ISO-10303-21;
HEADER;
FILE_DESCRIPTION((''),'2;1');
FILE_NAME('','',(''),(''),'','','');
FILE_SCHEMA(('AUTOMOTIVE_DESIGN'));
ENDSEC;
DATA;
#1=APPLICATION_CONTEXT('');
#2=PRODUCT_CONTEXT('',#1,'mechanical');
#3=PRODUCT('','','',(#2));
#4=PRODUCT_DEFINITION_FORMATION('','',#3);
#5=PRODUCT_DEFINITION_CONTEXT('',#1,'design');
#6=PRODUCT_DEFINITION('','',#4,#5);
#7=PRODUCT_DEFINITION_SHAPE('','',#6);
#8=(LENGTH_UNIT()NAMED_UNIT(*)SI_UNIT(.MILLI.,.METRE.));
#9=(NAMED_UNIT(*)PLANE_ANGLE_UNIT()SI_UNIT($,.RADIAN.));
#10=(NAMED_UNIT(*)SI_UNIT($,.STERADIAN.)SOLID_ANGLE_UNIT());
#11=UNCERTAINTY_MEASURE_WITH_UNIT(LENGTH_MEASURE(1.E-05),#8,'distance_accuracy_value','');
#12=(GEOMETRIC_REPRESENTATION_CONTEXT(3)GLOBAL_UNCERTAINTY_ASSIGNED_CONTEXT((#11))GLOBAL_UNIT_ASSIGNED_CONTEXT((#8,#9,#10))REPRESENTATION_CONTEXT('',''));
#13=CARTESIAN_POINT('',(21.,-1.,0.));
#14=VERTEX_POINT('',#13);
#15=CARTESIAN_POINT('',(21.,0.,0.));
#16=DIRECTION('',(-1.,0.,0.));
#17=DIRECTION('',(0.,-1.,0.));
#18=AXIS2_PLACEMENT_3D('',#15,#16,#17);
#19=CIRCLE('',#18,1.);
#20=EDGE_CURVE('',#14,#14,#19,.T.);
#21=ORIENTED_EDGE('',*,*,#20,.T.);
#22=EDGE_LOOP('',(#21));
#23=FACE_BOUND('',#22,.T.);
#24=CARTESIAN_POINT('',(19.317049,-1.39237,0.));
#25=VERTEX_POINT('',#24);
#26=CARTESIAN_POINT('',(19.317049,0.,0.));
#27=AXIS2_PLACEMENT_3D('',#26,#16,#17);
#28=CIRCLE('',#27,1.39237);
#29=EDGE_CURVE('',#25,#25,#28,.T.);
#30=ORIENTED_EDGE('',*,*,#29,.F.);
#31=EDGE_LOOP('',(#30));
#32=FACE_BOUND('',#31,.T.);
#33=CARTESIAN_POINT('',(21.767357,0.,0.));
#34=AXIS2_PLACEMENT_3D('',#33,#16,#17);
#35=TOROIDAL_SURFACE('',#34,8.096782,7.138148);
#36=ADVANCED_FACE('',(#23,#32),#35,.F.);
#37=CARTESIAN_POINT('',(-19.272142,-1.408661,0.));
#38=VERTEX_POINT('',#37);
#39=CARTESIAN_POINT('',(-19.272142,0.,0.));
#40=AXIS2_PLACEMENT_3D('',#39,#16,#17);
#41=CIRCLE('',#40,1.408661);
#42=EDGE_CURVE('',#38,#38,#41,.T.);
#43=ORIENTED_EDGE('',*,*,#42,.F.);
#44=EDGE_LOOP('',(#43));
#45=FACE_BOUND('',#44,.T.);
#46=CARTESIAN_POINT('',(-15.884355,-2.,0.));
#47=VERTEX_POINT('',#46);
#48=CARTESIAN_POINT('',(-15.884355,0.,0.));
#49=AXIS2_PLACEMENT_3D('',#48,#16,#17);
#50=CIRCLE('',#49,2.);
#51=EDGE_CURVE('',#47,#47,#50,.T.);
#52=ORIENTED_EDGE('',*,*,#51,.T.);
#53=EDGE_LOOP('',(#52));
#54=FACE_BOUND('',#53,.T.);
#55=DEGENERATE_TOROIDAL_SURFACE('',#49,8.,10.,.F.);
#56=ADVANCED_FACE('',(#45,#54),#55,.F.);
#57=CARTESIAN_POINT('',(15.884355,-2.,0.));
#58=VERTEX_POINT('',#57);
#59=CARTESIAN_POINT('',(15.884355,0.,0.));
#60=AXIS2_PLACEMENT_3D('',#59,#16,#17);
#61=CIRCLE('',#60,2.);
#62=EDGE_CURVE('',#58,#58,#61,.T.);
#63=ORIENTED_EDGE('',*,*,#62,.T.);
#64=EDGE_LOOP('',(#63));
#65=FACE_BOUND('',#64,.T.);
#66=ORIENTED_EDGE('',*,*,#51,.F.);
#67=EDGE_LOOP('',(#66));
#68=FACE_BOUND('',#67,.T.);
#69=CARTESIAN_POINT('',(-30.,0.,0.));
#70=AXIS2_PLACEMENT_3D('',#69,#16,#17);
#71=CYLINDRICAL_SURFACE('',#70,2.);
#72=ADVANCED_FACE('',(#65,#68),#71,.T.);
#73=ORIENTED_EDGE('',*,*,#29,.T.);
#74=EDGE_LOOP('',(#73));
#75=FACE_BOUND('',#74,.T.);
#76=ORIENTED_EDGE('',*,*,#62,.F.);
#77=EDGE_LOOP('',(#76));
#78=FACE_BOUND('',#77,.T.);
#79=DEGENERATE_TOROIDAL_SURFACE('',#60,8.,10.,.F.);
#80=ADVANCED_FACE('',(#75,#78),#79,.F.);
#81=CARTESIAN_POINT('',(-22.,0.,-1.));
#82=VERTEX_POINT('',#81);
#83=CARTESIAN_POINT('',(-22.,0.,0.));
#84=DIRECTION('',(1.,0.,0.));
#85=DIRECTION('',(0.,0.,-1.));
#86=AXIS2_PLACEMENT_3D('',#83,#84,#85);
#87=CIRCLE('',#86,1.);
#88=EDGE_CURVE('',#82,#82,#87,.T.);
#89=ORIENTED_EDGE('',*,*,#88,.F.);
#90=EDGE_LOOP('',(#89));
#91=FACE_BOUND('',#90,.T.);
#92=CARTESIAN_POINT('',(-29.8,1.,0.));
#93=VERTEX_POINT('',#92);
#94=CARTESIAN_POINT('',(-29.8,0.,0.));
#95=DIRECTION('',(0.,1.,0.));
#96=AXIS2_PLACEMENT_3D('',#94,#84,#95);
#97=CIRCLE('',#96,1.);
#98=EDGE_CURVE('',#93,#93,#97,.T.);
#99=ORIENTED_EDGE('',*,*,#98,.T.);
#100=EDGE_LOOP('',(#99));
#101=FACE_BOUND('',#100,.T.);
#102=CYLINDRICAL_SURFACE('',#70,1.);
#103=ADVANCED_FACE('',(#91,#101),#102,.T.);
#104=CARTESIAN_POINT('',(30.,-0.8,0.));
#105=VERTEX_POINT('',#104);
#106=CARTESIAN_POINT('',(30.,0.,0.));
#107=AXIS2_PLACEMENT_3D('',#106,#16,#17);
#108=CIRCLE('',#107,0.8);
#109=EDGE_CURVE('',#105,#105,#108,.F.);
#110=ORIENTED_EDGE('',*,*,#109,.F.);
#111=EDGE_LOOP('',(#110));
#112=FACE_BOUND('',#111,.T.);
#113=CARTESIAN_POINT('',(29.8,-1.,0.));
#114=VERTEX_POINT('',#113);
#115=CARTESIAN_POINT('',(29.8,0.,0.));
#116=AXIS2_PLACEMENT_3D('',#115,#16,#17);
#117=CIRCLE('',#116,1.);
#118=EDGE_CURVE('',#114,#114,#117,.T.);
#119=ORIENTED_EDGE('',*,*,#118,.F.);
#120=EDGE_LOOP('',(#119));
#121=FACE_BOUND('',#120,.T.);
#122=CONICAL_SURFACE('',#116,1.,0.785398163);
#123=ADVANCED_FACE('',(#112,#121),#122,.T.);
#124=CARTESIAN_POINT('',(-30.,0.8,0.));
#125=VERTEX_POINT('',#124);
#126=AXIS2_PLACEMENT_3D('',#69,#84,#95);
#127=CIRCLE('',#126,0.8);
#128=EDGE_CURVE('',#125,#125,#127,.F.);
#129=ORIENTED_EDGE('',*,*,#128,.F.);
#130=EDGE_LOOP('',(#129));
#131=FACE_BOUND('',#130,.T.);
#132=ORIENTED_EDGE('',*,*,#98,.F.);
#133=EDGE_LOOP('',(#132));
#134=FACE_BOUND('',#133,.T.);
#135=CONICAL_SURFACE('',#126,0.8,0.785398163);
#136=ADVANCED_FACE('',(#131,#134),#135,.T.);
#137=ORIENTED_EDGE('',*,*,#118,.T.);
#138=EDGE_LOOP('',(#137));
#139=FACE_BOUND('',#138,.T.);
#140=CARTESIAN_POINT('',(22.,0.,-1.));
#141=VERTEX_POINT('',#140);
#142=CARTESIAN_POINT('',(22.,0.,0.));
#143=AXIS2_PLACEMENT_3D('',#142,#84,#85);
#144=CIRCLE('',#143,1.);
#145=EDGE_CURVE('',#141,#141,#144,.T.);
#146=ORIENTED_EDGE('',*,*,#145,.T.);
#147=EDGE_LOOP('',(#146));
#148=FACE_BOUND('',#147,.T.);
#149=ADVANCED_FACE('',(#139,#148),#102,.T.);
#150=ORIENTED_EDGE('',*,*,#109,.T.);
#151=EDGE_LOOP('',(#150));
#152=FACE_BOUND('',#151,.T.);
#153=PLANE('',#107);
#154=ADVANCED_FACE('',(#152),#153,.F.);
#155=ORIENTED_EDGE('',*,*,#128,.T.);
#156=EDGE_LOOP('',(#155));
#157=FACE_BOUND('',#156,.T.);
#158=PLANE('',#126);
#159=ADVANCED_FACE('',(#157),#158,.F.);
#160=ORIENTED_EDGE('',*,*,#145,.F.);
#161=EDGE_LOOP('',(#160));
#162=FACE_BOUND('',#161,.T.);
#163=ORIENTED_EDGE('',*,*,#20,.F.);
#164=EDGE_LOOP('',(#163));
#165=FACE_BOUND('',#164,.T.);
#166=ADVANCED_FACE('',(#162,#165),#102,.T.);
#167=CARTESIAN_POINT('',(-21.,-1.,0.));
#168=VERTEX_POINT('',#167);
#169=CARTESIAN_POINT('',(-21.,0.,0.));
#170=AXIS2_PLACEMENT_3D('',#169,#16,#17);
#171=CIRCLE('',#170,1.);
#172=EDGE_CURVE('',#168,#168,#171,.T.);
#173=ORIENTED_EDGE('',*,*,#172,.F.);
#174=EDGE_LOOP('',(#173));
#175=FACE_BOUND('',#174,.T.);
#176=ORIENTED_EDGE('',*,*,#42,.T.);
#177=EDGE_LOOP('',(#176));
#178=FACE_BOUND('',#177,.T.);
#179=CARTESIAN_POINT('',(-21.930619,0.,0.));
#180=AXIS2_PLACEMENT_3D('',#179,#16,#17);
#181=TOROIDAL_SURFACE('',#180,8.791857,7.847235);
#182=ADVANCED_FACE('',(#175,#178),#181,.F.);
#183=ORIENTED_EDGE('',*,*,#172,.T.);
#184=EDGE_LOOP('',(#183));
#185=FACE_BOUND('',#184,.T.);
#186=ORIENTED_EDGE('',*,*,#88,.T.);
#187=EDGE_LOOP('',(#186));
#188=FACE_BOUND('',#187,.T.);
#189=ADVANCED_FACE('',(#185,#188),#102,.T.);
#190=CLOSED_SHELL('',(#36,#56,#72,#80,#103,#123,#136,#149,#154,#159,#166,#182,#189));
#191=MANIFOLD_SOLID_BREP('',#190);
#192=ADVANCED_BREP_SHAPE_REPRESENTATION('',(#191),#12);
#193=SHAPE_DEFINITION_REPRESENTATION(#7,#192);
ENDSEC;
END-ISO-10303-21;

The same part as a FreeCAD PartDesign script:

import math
import FreeCAD as App
import Part
import Sketcher

V = App.Vector
Q = App.Units.Quantity


def edges_at(feature, points):
    """Names of the edges that pass closest to the given points."""
    edges = feature.Shape.Edges
    near = lambda p: min(range(len(edges)), key=lambda i: edges[i].distToShape(Part.Vertex(*p))[0])
    return sorted({f"Edge{near(p) + 1}" for p in points})

doc = App.newDocument("Part")
body = doc.addObject("PartDesign::Body", "Body")

# Sketch on XY plane
sketch1 = body.newObject("Sketcher::SketchObject", "Sketch")
sketch1.AttachmentSupport = (doc.getObject("XY_Plane"), [""])
sketch1.MapMode = "FlatFace"
sketch1.addGeometry(Part.LineSegment(V(-30, 0, 0), V(30, 0, 0)), False)
sketch1.addGeometry(Part.LineSegment(V(30, 0, 0), V(30, 1, 0)), False)
sketch1.addGeometry(Part.LineSegment(V(30, 1, 0), V(21, 1, 0)), False)
sketch1.addGeometry(Part.ArcOfCircle(Part.Circle(V(21.8, 8.1, 0), V(0, 0, 1), 7.1), math.radians(-110.08), math.radians(-96.17)), False)
sketch1.addGeometry(Part.ArcOfCircle(Part.Circle(V(15.9, -8, 0), V(0, 0, 1), 10), math.radians(70), math.radians(90)), False)
sketch1.addGeometry(Part.LineSegment(V(15.9, 2, 0), V(-15.9, 2, 0)), False)
sketch1.addGeometry(Part.ArcOfCircle(Part.Circle(V(-15.9, -8, 0), V(0, 0, 1), 10), math.radians(90), math.radians(109.8)), False)
sketch1.addGeometry(Part.ArcOfCircle(Part.Circle(V(-21.9, 8.8, 0), V(0, 0, 1), 7.8), math.radians(-83.19), math.radians(-70.2)), False)
sketch1.addGeometry(Part.LineSegment(V(-21, 1, 0), V(-30, 1, 0)), False)
sketch1.addGeometry(Part.LineSegment(V(-30, 1, 0), V(-30, 0, 0)), False)
sketch1.addConstraint(Sketcher.Constraint("Coincident", 0, 2, 1, 1))
sketch1.addConstraint(Sketcher.Constraint("Coincident", 1, 2, 2, 1))
sketch1.addConstraint(Sketcher.Constraint("Coincident", 2, 2, 3, 2))
sketch1.addConstraint(Sketcher.Constraint("Tangent", 3, 1, 4, 1))
sketch1.addConstraint(Sketcher.Constraint("Tangent", 4, 2, 5, 1))
sketch1.addConstraint(Sketcher.Constraint("Tangent", 5, 2, 6, 1))
sketch1.addConstraint(Sketcher.Constraint("Tangent", 6, 2, 7, 2))
sketch1.addConstraint(Sketcher.Constraint("Coincident", 7, 1, 8, 1))
sketch1.addConstraint(Sketcher.Constraint("Coincident", 8, 2, 9, 1))
sketch1.addConstraint(Sketcher.Constraint("Coincident", 9, 2, 0, 1))
sketch1.addConstraint(Sketcher.Constraint("Horizontal", 0))
sketch1.addConstraint(Sketcher.Constraint("Vertical", 1))
sketch1.addConstraint(Sketcher.Constraint("Horizontal", 2))
sketch1.addConstraint(Sketcher.Constraint("Horizontal", 5))
sketch1.addConstraint(Sketcher.Constraint("Horizontal", 8))
sketch1.addConstraint(Sketcher.Constraint("Vertical", 9))
sketch1.addConstraint(Sketcher.Constraint("Equal", 4, 6))
sketch1.addConstraint(Sketcher.Constraint("Symmetric", 0, 2, 9, 2, -1, 1))
sketch1.addConstraint(Sketcher.Constraint("Symmetric", 2, 2, 7, 1, -2))
sketch1.addConstraint(Sketcher.Constraint("Radius", 4, Q("10 mm")))
sketch1.addConstraint(Sketcher.Constraint("DistanceX", 0, 1, 0, 2, Q("60 mm")))
sketch1.addConstraint(Sketcher.Constraint("DistanceX", 2, 2, 2, 1, Q("9 mm")))
sketch1.addConstraint(Sketcher.Constraint("DistanceY", 1, 1, 1, 2, Q("1 mm")))
sketch1.addConstraint(Sketcher.Constraint("DistanceY", 4, 3, -1, 1, Q("8 mm")))
sketch1.addConstraint(Sketcher.Constraint("Radius", 3, Q("7.138148 mm")))
sketch1.addConstraint(Sketcher.Constraint("Radius", 7, Q("7.847235 mm")))
sketch1.addConstraint(Sketcher.Constraint("DistanceX", 4, 3, 3, 3, Q("5.883002 mm")))
sketch1.addConstraint(Sketcher.Constraint("DistanceX", 5, 2, 5, 1, Q("31.768709 mm")))
revolution = body.newObject("PartDesign::Revolution", "Revolution")
revolution.Profile = sketch1
revolution.ReferenceAxis = (sketch1, ["H_Axis"])
revolution.Angle = 360
doc.recompute()

chamfer = body.newObject("PartDesign::Chamfer", "Chamfer")
chamfer.Base = (revolution, edges_at(revolution, [(30, 1, 0), (-30, 1, 0)]))
chamfer.Size = 0.2

doc.recompute()
